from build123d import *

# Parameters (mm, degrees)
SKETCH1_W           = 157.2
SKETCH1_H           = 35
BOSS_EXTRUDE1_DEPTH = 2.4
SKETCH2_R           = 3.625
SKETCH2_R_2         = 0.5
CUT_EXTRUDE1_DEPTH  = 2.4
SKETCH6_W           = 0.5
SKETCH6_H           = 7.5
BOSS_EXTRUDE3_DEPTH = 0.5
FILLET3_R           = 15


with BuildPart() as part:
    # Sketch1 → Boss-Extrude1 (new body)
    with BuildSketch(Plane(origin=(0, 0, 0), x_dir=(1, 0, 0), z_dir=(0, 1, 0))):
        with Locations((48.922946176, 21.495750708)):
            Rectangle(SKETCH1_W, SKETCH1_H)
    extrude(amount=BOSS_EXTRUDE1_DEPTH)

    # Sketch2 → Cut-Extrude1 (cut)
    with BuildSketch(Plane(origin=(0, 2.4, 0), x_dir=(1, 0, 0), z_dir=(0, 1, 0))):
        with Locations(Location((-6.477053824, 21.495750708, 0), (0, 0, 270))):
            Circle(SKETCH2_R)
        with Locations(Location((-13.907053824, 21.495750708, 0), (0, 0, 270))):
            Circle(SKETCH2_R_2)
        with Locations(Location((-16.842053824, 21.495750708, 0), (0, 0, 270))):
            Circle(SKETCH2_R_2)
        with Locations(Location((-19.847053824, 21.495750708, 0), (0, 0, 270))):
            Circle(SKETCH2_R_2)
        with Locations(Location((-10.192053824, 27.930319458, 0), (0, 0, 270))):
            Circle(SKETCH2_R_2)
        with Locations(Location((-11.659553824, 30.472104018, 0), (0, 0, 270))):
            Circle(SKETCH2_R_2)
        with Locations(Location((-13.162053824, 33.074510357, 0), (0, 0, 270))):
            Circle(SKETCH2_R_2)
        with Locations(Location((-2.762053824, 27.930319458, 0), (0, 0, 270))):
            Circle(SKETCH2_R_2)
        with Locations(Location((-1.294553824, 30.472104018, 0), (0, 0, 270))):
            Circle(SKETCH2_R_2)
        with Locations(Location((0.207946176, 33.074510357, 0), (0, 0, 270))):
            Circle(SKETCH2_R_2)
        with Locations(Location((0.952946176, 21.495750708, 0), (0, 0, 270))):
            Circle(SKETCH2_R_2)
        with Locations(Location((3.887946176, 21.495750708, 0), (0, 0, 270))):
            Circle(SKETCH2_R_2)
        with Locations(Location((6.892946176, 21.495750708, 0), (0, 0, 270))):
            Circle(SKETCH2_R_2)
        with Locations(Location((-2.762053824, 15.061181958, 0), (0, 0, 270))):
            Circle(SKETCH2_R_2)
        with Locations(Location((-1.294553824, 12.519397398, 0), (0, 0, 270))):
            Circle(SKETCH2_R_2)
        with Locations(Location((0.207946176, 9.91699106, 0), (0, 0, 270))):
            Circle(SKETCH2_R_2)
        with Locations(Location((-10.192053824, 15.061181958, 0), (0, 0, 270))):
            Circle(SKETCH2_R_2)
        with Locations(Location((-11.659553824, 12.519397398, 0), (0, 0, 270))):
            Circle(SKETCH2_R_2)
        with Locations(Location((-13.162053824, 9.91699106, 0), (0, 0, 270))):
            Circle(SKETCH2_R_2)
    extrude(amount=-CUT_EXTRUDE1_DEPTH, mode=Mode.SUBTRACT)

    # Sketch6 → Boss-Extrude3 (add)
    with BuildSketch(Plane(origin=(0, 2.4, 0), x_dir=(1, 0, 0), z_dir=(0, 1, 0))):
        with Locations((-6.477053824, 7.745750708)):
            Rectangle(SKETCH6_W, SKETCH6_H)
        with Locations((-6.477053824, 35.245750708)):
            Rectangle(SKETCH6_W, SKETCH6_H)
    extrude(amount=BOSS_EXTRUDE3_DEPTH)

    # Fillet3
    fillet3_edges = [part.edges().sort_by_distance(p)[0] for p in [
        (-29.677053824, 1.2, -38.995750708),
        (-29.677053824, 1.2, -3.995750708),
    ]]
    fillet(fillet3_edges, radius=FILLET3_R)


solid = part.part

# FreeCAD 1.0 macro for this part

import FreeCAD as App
import Part
import Sketcher
from FreeCAD import Vector
Q = App.Units.Quantity


def edges_at(feature, points):
    """Names of the edges that pass closest to the given points."""
    edges = feature.Shape.Edges
    near = lambda p: min(range(len(edges)), key=lambda i: edges[i].distToShape(Part.Vertex(*p))[0])
    return sorted({f"Edge{near(p) + 1}" for p in points})

doc = App.newDocument("Part")
body = doc.addObject("PartDesign::Body", "Body")

sketch1 = body.newObject("Sketcher::SketchObject", "Sketch")
sketch1.AttachmentSupport = (doc.getObject("XZ_Plane"), [""])
sketch1.MapMode = "FlatFace"
sketch1.addGeometry([
    Part.LineSegment(Vector(-30, -39, 0), Vector(-30, -4, 0)),
    Part.LineSegment(Vector(-30, -4, 0), Vector(128, -4, 0)),
    Part.LineSegment(Vector(128, -4, 0), Vector(128, -39, 0)),
    Part.LineSegment(Vector(128, -39, 0), Vector(-30, -39, 0)),
], False)
sketch1.addConstraint([
    Sketcher.Constraint("Coincident", 0, 2, 1, 1),
    Sketcher.Constraint("Coincident", 1, 2, 2, 1),
    Sketcher.Constraint("Coincident", 2, 2, 3, 1),
    Sketcher.Constraint("Coincident", 3, 2, 0, 1),
    Sketcher.Constraint("Vertical", 0),
    Sketcher.Constraint("Horizontal", 1),
    Sketcher.Constraint("Vertical", 2),
    Sketcher.Constraint("Horizontal", 3),
    Sketcher.Constraint("DistanceY", 0, 1, 0, 2, Q("35 mm")),
    Sketcher.Constraint("DistanceX", 1, 1, 1, 2, Q("157.2 mm")),
    Sketcher.Constraint("DistanceY", 0, 2, -1, 1, Q("3.995751 mm")),
    Sketcher.Constraint("DistanceX", 0, 2, -1, 1, Q("29.677054 mm")),
])
pad1 = body.newObject("PartDesign::Pad", "Pad")
pad1.Profile = sketch1
pad1.Length = 2.4
pad1.Reversed = True

sketch2 = body.newObject("Sketcher::SketchObject", "Sketch001")
sketch2.AttachmentSupport = (doc.getObject("XZ_Plane"), [""])
sketch2.MapMode = "FlatFace"
sketch2.AttachmentOffset = App.Placement(Vector(0, 0, -2.4), App.Rotation())
sketch2.addGeometry([
    Part.Circle(Vector(-6.5, -21.5, 0), Vector(0, 0, 1), 3.6),
    Part.Circle(Vector(-13.9, -21.5, 0), Vector(0, 0, 1), 0.5),
    Part.Circle(Vector(-16.8, -21.5, 0), Vector(0, 0, 1), 0.5),
    Part.Circle(Vector(-19.8, -21.5, 0), Vector(0, 0, 1), 0.5),
    Part.Circle(Vector(-10.2, -27.9, 0), Vector(0, 0, 1), 0.5),
    Part.Circle(Vector(-11.7, -30.5, 0), Vector(0, 0, 1), 0.5),
    Part.Circle(Vector(-13.2, -33.1, 0), Vector(0, 0, 1), 0.5),
    Part.Circle(Vector(-2.8, -27.9, 0), Vector(0, 0, 1), 0.5),
    Part.Circle(Vector(-1.3, -30.5, 0), Vector(0, 0, 1), 0.5),
    Part.Circle(Vector(0.2, -33.1, 0), Vector(0, 0, 1), 0.5),
    Part.Circle(Vector(1, -21.5, 0), Vector(0, 0, 1), 0.5),
    Part.Circle(Vector(3.9, -21.5, 0), Vector(0, 0, 1), 0.5),
    Part.Circle(Vector(6.9, -21.5, 0), Vector(0, 0, 1), 0.5),
    Part.Circle(Vector(-2.8, -15.1, 0), Vector(0, 0, 1), 0.5),
    Part.Circle(Vector(-1.3, -12.5, 0), Vector(0, 0, 1), 0.5),
    Part.Circle(Vector(0.2, -9.9, 0), Vector(0, 0, 1), 0.5),
    Part.Circle(Vector(-10.2, -15.1, 0), Vector(0, 0, 1), 0.5),
    Part.Circle(Vector(-11.7, -12.5, 0), Vector(0, 0, 1), 0.5),
    Part.Circle(Vector(-13.2, -9.9, 0), Vector(0, 0, 1), 0.5),
], False)
sketch2.addConstraint([
    Sketcher.Constraint("Equal", 1, 2),
    Sketcher.Constraint("Equal", 2, 3),
    Sketcher.Constraint("Equal", 3, 4),
    Sketcher.Constraint("Equal", 4, 5),
    Sketcher.Constraint("Equal", 5, 6),
    Sketcher.Constraint("Equal", 6, 7),
    Sketcher.Constraint("Equal", 7, 8),
    Sketcher.Constraint("Equal", 8, 9),
    Sketcher.Constraint("Equal", 9, 10),
    Sketcher.Constraint("Equal", 10, 11),
    Sketcher.Constraint("Equal", 11, 12),
    Sketcher.Constraint("Equal", 12, 13),
    Sketcher.Constraint("Equal", 13, 14),
    Sketcher.Constraint("Equal", 14, 15),
    Sketcher.Constraint("Equal", 15, 16),
    Sketcher.Constraint("Equal", 16, 17),
    Sketcher.Constraint("Equal", 17, 18),
    Sketcher.Constraint("Horizontal", 0, 3, 1, 3),
    Sketcher.Constraint("Horizontal", 1, 3, 2, 3),
    Sketcher.Constraint("Horizontal", 2, 3, 3, 3),
    Sketcher.Constraint("Horizontal", 4, 3, 7, 3),
    Sketcher.Constraint("Horizontal", 5, 3, 8, 3),
    Sketcher.Constraint("Horizontal", 6, 3, 9, 3),
    Sketcher.Constraint("Horizontal", 3, 3, 10, 3),
    Sketcher.Constraint("Horizontal", 10, 3, 11, 3),
    Sketcher.Constraint("Horizontal", 11, 3, 12, 3),
    Sketcher.Constraint("Horizontal", 13, 3, 16, 3),
    Sketcher.Constraint("Horizontal", 14, 3, 17, 3),
    Sketcher.Constraint("Horizontal", 15, 3, 18, 3),
    Sketcher.Constraint("Vertical", 7, 3, 13, 3),
    Sketcher.Constraint("Vertical", 8, 3, 14, 3),
    Sketcher.Constraint("Vertical", 9, 3, 15, 3),
    Sketcher.Constraint("Vertical", 4, 3, 16, 3),
    Sketcher.Constraint("Vertical", 5, 3, 17, 3),
    Sketcher.Constraint("Vertical", 6, 3, 18, 3),
    Sketcher.Constraint("Diameter", 1, Q("1 mm")),
    Sketcher.Constraint("Diameter", 0, Q("7.25 mm")),
    Sketcher.Constraint("DistanceX", 6, 3, 7, 3, Q("10.4 mm")),
    Sketcher.Constraint("DistanceX", 4, 3, 9, 3, Q("10.4 mm")),
    Sketcher.Constraint("DistanceX", 1, 3, 0, 3, Q("7.43 mm")),
    Sketcher.Constraint("DistanceX", 3, 3, 1, 3, Q("5.94 mm")),
    Sketcher.Constraint("DistanceX", 2, 3, 4, 3, Q("6.65 mm")),
    Sketcher.Constraint("DistanceX", 6, 3, 4, 3, Q("2.97 mm")),
    Sketcher.Constraint("DistanceX", 0, 3, 10, 3, Q("7.43 mm")),
    Sketcher.Constraint("DistanceX", 7, 3, 11, 3, Q("6.65 mm")),
    Sketcher.Constraint("DistanceX", 10, 3, 12, 3, Q("5.94 mm")),
    Sketcher.Constraint("DistanceX", 2, 3, 1, 3, Q("2.935 mm")),
    Sketcher.Constraint("DistanceX", 5, 3, 8, 3, Q("10.365 mm")),
    Sketcher.Constraint("DistanceX", 5, 3, 4, 3, Q("1.4675 mm")),
    Sketcher.Constraint("DistanceY", 0, 3, -1, 1, Q("21.495751 mm")),
    Sketcher.Constraint("DistanceY", 4, 3, -1, 1, Q("27.930319 mm")),
    Sketcher.Constraint("DistanceY", 6, 3, -1, 1, Q("33.07451 mm")),
    Sketcher.Constraint("DistanceY", 13, 3, -1, 1, Q("15.061182 mm")),
    Sketcher.Constraint("DistanceY", 15, 3, -1, 1, Q("9.916991 mm")),
    Sketcher.Constraint("DistanceX", 0, 3, -1, 1, Q("6.477054 mm")),
    Sketcher.Constraint("DistanceY", 5, 3, -1, 1, Q("30.472104 mm")),
    Sketcher.Constraint("DistanceY", 14, 3, -1, 1, Q("12.519397 mm")),
])
pocket1 = body.newObject("PartDesign::Pocket", "Pocket")
pocket1.Profile = sketch2
pocket1.Length = 2.4
pocket1.Reversed = True

sketch3 = body.newObject("Sketcher::SketchObject", "Sketch002")
sketch3.AttachmentSupport = (doc.getObject("XZ_Plane"), [""])
sketch3.MapMode = "FlatFace"
sketch3.AttachmentOffset = App.Placement(Vector(0, 0, -2.4), App.Rotation())
sketch3.addGeometry([
    Part.LineSegment(Vector(-6.7, -11.5, 0), Vector(-6.7, -4, 0)),
    Part.LineSegment(Vector(-6.7, -4, 0), Vector(-6.2, -4, 0)),
    Part.LineSegment(Vector(-6.2, -4, 0), Vector(-6.2, -11.5, 0)),
    Part.LineSegment(Vector(-6.2, -11.5, 0), Vector(-6.7, -11.5, 0)),
    Part.LineSegment(Vector(-6.7, -39, 0), Vector(-6.7, -31.5, 0)),
    Part.LineSegment(Vector(-6.7, -31.5, 0), Vector(-6.2, -31.5, 0)),
    Part.LineSegment(Vector(-6.2, -31.5, 0), Vector(-6.2, -39, 0)),
    Part.LineSegment(Vector(-6.2, -39, 0), Vector(-6.7, -39, 0)),
], False)
sketch3.addConstraint([
    Sketcher.Constraint("Coincident", 0, 2, 1, 1),
    Sketcher.Constraint("Coincident", 1, 2, 2, 1),
    Sketcher.Constraint("Coincident", 2, 2, 3, 1),
    Sketcher.Constraint("Coincident", 3, 2, 0, 1),
    Sketcher.Constraint("Coincident", 4, 2, 5, 1),
    Sketcher.Constraint("Coincident", 5, 2, 6, 1),
    Sketcher.Constraint("Coincident", 6, 2, 7, 1),
    Sketcher.Constraint("Coincident", 7, 2, 4, 1),
    Sketcher.Constraint("Vertical", 0),
    Sketcher.Constraint("Horizontal", 1),
    Sketcher.Constraint("Vertical", 2),
    Sketcher.Constraint("Horizontal", 3),
    Sketcher.Constraint("Vertical", 4),
    Sketcher.Constraint("Horizontal", 5),
    Sketcher.Constraint("Vertical", 6),
    Sketcher.Constraint("Horizontal", 7),
    Sketcher.Constraint("Vertical", 3, 2, 4, 2),
    Sketcher.Constraint("Vertical", 2, 2, 5, 2),
    Sketcher.Constraint("Equal", 2, 4),
    Sketcher.Constraint("DistanceX", 1, 1, 1, 2, Q("0.5 mm")),
    Sketcher.Constraint("DistanceY", 0, 1, 0, 2, Q("7.5 mm")),
    Sketcher.Constraint("DistanceY", 4, 2, 3, 2, Q("20 mm")),
    Sketcher.Constraint("DistanceY", 0, 2, -1, 1, Q("3.995751 mm")),
    Sketcher.Constraint("DistanceX", 0, 2, -1, 1, Q("6.727054 mm")),
])
pad2 = body.newObject("PartDesign::Pad", "Pad001")
pad2.Profile = sketch3
pad2.Length = 0.5
pad2.Reversed = True
doc.recompute()

fillet = body.newObject("PartDesign::Fillet", "Fillet")
fillet.Base = (pad2, edges_at(pad2, [(-29.677, 1.2, -38.996), (-29.677, 1.2, -3.996)]))
fillet.Radius = 15

doc.recompute()
